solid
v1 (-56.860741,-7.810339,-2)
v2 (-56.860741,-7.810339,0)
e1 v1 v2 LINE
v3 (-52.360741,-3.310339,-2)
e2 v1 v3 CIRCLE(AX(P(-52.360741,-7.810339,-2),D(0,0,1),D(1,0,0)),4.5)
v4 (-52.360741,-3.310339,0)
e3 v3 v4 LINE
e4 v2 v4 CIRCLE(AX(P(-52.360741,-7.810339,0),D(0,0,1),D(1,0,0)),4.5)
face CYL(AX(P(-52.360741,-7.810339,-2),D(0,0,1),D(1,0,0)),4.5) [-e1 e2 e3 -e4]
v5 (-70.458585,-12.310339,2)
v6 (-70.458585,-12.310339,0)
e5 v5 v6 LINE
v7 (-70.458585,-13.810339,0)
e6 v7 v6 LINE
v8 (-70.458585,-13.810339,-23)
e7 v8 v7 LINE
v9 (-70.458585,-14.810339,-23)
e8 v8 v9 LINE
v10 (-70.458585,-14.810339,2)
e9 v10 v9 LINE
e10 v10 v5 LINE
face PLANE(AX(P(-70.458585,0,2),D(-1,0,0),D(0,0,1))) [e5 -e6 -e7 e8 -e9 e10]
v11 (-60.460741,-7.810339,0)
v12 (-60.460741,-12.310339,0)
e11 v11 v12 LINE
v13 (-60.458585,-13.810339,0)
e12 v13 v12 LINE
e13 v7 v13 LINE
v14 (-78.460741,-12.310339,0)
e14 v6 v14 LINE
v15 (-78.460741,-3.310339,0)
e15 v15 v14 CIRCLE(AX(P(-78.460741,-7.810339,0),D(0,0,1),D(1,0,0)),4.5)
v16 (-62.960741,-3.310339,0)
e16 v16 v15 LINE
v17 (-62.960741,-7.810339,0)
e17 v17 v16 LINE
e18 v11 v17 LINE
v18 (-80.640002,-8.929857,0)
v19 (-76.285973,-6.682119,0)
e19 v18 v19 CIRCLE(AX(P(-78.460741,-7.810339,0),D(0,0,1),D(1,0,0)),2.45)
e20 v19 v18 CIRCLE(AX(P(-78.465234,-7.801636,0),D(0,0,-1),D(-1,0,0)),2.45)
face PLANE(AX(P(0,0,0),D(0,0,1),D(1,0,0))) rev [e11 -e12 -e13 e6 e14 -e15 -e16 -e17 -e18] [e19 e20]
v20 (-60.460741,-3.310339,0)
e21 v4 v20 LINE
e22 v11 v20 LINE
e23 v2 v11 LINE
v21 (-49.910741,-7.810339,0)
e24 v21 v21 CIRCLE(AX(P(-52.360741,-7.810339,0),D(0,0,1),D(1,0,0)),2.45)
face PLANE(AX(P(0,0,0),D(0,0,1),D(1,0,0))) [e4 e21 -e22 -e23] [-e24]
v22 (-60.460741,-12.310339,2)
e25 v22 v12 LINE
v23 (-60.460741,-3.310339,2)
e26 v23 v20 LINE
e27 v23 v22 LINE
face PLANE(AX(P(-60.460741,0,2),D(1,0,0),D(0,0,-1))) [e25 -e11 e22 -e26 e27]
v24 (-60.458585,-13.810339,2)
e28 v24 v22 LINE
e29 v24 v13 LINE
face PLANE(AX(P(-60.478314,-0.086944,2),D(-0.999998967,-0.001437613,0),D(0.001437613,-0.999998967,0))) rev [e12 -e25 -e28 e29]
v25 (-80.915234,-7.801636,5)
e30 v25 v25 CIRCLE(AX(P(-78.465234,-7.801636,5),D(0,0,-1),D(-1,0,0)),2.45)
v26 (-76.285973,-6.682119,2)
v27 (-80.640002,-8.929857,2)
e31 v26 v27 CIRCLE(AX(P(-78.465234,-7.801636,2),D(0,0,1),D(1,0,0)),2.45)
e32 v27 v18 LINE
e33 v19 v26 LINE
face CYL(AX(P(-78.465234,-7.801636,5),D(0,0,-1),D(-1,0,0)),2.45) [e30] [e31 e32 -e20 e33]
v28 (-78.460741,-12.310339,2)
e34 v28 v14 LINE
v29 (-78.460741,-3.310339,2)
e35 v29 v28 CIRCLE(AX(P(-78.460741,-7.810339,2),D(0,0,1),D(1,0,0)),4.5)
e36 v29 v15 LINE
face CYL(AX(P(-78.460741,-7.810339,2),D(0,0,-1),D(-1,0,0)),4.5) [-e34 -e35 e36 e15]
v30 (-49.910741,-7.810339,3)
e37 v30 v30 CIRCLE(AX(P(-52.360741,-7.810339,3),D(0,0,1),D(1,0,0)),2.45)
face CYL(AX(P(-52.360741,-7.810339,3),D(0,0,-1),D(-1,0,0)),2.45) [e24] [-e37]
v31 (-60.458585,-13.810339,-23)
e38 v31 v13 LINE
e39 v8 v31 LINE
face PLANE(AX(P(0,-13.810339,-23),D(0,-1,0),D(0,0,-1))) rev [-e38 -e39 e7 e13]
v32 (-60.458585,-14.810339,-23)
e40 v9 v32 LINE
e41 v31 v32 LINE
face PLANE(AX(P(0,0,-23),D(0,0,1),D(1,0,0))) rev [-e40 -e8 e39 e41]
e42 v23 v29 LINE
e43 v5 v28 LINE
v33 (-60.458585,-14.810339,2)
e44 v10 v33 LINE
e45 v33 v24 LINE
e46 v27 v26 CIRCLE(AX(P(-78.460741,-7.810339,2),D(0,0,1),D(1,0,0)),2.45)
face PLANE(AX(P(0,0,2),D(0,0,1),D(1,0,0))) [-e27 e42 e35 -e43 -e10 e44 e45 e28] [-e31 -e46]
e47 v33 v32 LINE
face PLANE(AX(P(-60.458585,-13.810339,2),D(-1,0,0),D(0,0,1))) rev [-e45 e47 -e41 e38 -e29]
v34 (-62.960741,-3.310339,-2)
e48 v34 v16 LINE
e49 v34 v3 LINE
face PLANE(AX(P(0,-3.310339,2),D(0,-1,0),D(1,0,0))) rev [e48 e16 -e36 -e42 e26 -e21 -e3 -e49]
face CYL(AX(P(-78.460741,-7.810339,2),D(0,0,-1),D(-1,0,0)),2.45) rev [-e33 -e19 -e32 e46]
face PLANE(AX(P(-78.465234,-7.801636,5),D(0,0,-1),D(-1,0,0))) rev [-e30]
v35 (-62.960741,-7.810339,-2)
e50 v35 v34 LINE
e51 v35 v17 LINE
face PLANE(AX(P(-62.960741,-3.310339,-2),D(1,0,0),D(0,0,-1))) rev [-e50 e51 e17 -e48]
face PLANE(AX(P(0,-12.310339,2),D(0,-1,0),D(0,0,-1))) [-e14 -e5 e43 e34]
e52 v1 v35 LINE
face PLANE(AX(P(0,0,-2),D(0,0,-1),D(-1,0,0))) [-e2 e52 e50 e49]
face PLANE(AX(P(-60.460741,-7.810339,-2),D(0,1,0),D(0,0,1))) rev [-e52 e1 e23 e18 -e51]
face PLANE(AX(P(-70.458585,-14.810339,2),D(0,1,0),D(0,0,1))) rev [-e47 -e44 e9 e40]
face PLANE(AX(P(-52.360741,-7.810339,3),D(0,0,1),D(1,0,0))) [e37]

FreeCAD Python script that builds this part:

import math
import FreeCAD as App
import Part
import Sketcher

V = App.Vector
Q = App.Units.Quantity


def add_polygon(sketch, points):
    """Adds a closed chain of lines whose ends are joined by coincident constraints."""
    first, n = sketch.GeometryCount, len(points)
    for a, b in zip(points, points[1:] + points[:1]):
        sketch.addGeometry(Part.LineSegment(App.Vector(*a, 0), App.Vector(*b, 0)), False)
    for i in range(n):
        sketch.addConstraint(Sketcher.Constraint("Coincident", first + i, 2, first + (i + 1) % n, 1))

doc = App.newDocument("Part")
params = doc.addObject("Spreadsheet::Sheet", "Params")
for row, (alias, value) in enumerate([
    ("sketch1_diameter", "4.9 mm"),
    ("sketch1_radius", "4.5 mm"),
    ("sketch1_width", "8.1 mm"),
    ("pad1_length", "2 mm"),
    ("sketch2_diameter", "4.9 mm"),
    ("sketch2_radius", "4.5 mm"),
    ("sketch2_width", "10 mm"),
    ("sketch2_width2", "18 mm"),
    ("sketch2_height", "1.5 mm"),
    ("pad2_length", "2 mm"),
    ("sketch3_diameter", "4.9 mm"),
    ("pad3_length", "3 mm"),
    ("pad4_length", "2 mm"),
    ("sketch5_width", "2.5 mm"),
    ("sketch5_height", "4.5 mm"),
    ("pad5_length", "2 mm"),
    ("sketch6_width", "10 mm"),
    ("sketch6_height", "1 mm"),
    ("pad6_length", "23 mm"),
    ("sketch7_width", "10 mm"),
    ("sketch7_height", "1 mm"),
    ("pad7_length", "2 mm"),
    ("sketch8_diameter", "4.9 mm"),
    ("pad8_length", "5 mm"),
], start=1):
    params.set(f"A{row}", alias)
    params.set(f"B{row}", "=" + value)
    params.setAlias(f"B{row}", alias)

body = doc.addObject("PartDesign::Body", "Body")

# Sketch on XY plane
sketch1 = body.newObject("Sketcher::SketchObject", "Sketch")
sketch1.AttachmentSupport = (doc.getObject("XY_Plane"), [""])
sketch1.MapMode = "FlatFace"
sketch1.addGeometry([
    Part.LineSegment(V(-52.4, -3.3, 0), V(-60.5, -3.3, 0)),  # 0
    Part.LineSegment(V(-60.5, -3.3, 0), V(-60.5, -7.8, 0)),  # 1
    Part.LineSegment(V(-60.5, -7.8, 0), V(-56.9, -7.8, 0)),  # 2
    Part.ArcOfCircle(Part.Circle(V(-52.4, -7.8, 0), V(0, 0, 1), 4.5), math.radians(180), math.radians(450)),  # 3
    Part.Circle(V(-52.4, -7.8, 0), V(0, 0, 1), 2.5),  # 4
], False)
sketch1.addConstraint([
    Sketcher.Constraint("Coincident", 0, 2, 1, 1),
    Sketcher.Constraint("Coincident", 1, 2, 2, 1),
    Sketcher.Constraint("Coincident", 2, 2, 3, 1),
    Sketcher.Constraint("Tangent", 3, 2, 0, 1),
    Sketcher.Constraint("Horizontal", 0),
    Sketcher.Constraint("Vertical", 1),
    Sketcher.Constraint("Horizontal", 2),
    Sketcher.Constraint("Coincident", 4, 3, 3, 3),
    Sketcher.Constraint("Horizontal", 4, 3, 1, 2),
    Sketcher.Constraint("Diameter", 4, Q("4.9 mm")),
    Sketcher.Constraint("Radius", 3, Q("4.5 mm")),
    Sketcher.Constraint("DistanceX", 0, 2, 0, 1, Q("8.1 mm")),
    Sketcher.Constraint("DistanceX", 3, 3, -1, 1, Q("52.360741 mm")),
    Sketcher.Constraint("DistanceY", 3, 3, -1, 1, Q("7.810339 mm")),
])
sketch1.setExpression("Constraints[9]", "Params.sketch1_diameter")
sketch1.setExpression("Constraints[10]", "Params.sketch1_radius")
sketch1.setExpression("Constraints[11]", "Params.sketch1_width")
pad1 = body.newObject("PartDesign::Pad", "Pad")
pad1.Profile = sketch1
pad1.setExpression("Length", "Params.pad1_length")
pad1.Reversed = True
body2 = doc.addObject("PartDesign::Body", "Body001")

# Sketch on XY plane
sketch2 = body2.newObject("Sketcher::SketchObject", "Sketch001")
sketch2.AttachmentSupport = (doc.getObject("XY_Plane001"), [""])
sketch2.MapMode = "FlatFace"
sketch2.addGeometry([
    Part.LineSegment(V(-78.5, -12.3, 0), V(-70.5, -12.3, 0)),  # 0
    Part.LineSegment(V(-70.5, -12.3, 0), V(-70.5, -13.8, 0)),  # 1
    Part.LineSegment(V(-70.5, -13.8, 0), V(-60.5, -13.8, 0)),  # 2
    Part.LineSegment(V(-60.5, -13.8, 0), V(-60.5, -12.3, 0)),  # 3
    Part.LineSegment(V(-60.5, -12.3, 0), V(-60.5, -3.3, 0)),  # 4
    Part.LineSegment(V(-60.5, -3.3, 0), V(-78.5, -3.3, 0)),  # 5
    Part.ArcOfCircle(Part.Circle(V(-78.5, -7.8, 0), V(0, 0, 1), 4.5), math.radians(90), math.radians(270)),  # 6
    Part.Circle(V(-78.5, -7.8, 0), V(0, 0, 1), 2.5),  # 7
], False)
sketch2.addConstraint([
    Sketcher.Constraint("Coincident", 0, 2, 1, 1),
    Sketcher.Constraint("Coincident", 1, 2, 2, 1),
    Sketcher.Constraint("Coincident", 2, 2, 3, 1),
    Sketcher.Constraint("Coincident", 3, 2, 4, 1),
    Sketcher.Constraint("Coincident", 4, 2, 5, 1),
    Sketcher.Constraint("Tangent", 5, 2, 6, 1),
    Sketcher.Constraint("Tangent", 6, 2, 0, 1),
    Sketcher.Constraint("Horizontal", 0),
    Sketcher.Constraint("Vertical", 1),
    Sketcher.Constraint("Horizontal", 2),
    Sketcher.Constraint("Vertical", 4),
    Sketcher.Constraint("Horizontal", 5),
    Sketcher.Constraint("Coincident", 7, 3, 6, 3),
    Sketcher.Constraint("Horizontal", 0, 2, 3, 2),
    Sketcher.Constraint("Diameter", 7, Q("4.9 mm")),
    Sketcher.Constraint("Radius", 6, Q("4.5 mm")),
    Sketcher.Constraint("DistanceX", 2, 1, 2, 2, Q("10 mm")),
    Sketcher.Constraint("DistanceX", 5, 2, 5, 1, Q("18 mm")),
    Sketcher.Constraint("DistanceY", 1, 2, 1, 1, Q("1.5 mm")),
    Sketcher.Constraint("DistanceX", 0, 1, 0, 2, Q("8.002156 mm")),
    Sketcher.Constraint("DistanceX", 6, 3, -1, 1, Q("78.460741 mm")),
    Sketcher.Constraint("DistanceY", 6, 3, -1, 1, Q("7.810339 mm")),
])
sketch2.setExpression("Constraints[14]", "Params.sketch2_diameter")
sketch2.setExpression("Constraints[15]", "Params.sketch2_radius")
sketch2.setExpression("Constraints[16]", "Params.sketch2_width")
sketch2.setExpression("Constraints[17]", "Params.sketch2_width2")
sketch2.setExpression("Constraints[18]", "Params.sketch2_height")
pad2 = body2.newObject("PartDesign::Pad", "Pad001")
pad2.Profile = sketch2
pad2.setExpression("Length", "Params.pad2_length")
body3 = doc.addObject("PartDesign::Body", "Body002")

# Sketch on XY plane
sketch3 = body3.newObject("Sketcher::SketchObject", "Sketch002")
sketch3.AttachmentSupport = (doc.getObject("XY_Plane002"), [""])
sketch3.MapMode = "FlatFace"
sketch3.addGeometry(Part.Circle(V(-52.4, -7.8, 0), V(0, 0, 1), 2.5), False)
sketch3.addConstraint([
    Sketcher.Constraint("Diameter", 0, Q("4.9 mm")),
    Sketcher.Constraint("DistanceX", 0, 3, -1, 1, Q("52.360741 mm")),
    Sketcher.Constraint("DistanceY", 0, 3, -1, 1, Q("7.810339 mm")),
])
sketch3.setExpression("Constraints[0]", "Params.sketch3_diameter")
pad3 = body3.newObject("PartDesign::Pad", "Pad002")
pad3.Profile = sketch3
pad3.setExpression("Length", "Params.pad3_length")
body.AllowCompound = True
doc.recompute()

boolean = body.newObject("PartDesign::Boolean", "Boolean")
boolean.Type = "Fuse"
boolean.addObjects([body3])

# Sketch on XY plane
sketch4 = body.newObject("Sketcher::SketchObject", "Sketch003")
sketch4.AttachmentSupport = (doc.getObject("XY_Plane"), [""])
sketch4.MapMode = "FlatFace"
sketch4.addGeometry(Part.Circle(V(-52.4, -7.8, 0), V(0, 0, 1), 2.5), False)
sketch4.addConstraint([
    Sketcher.Constraint("Diameter", 0, Q("5.058905 mm")),
    Sketcher.Constraint("DistanceY", 0, 3, -1, 1, Q("7.79565 mm")),
    Sketcher.Constraint("DistanceX", 0, 3, -1, 1, Q("52.438824 mm")),
])
pad4 = body.newObject("PartDesign::Pad", "Pad003")
pad4.Profile = sketch4
pad4.setExpression("Length", "Params.pad4_length")
pad4.Reversed = True
doc.recompute()

boolean2 = body.newObject("PartDesign::Boolean", "Boolean001")
boolean2.Type = "Fuse"
boolean2.addObjects([body2])

# Sketch on XY plane
sketch5 = body.newObject("Sketcher::SketchObject", "Sketch004")
sketch5.AttachmentSupport = (doc.getObject("XY_Plane"), [""])
sketch5.MapMode = "FlatFace"
add_polygon(sketch5, [(-60.5, -3.3), (-60.5, -7.8), (-63, -7.8), (-63, -3.3)])  # lines 0-3
sketch5.addConstraint([
    Sketcher.Constraint("Vertical", 0),
    Sketcher.Constraint("Horizontal", 1),
    Sketcher.Constraint("Vertical", 2),
    Sketcher.Constraint("Horizontal", 3),
    Sketcher.Constraint("DistanceX", 1, 2, 1, 1, Q("2.5 mm")),
    Sketcher.Constraint("DistanceY", 0, 2, 0, 1, Q("4.5 mm")),
    Sketcher.Constraint("DistanceX", 0, 2, -1, 1, Q("60.460741 mm")),
    Sketcher.Constraint("DistanceY", 0, 2, -1, 1, Q("7.810339 mm")),
])
sketch5.setExpression("Constraints[8]", "Params.sketch5_width")
sketch5.setExpression("Constraints[9]", "Params.sketch5_height")
pad5 = body.newObject("PartDesign::Pad", "Pad004")
pad5.Profile = sketch5
pad5.setExpression("Length", "Params.pad5_length")
pad5.Reversed = True
body4 = doc.addObject("PartDesign::Body", "Body003")

# Sketch on XY plane
sketch6 = body4.newObject("Sketcher::SketchObject", "Sketch005")
sketch6.AttachmentSupport = (doc.getObject("XY_Plane003"), [""])
sketch6.MapMode = "FlatFace"
add_polygon(sketch6, [(-70.5, -13.8), (-70.5, -14.8), (-60.5, -14.8), (-60.5, -13.8)])  # lines 0-3
sketch6.addConstraint([
    Sketcher.Constraint("Vertical", 0),
    Sketcher.Constraint("Horizontal", 1),
    Sketcher.Constraint("Vertical", 2),
    Sketcher.Constraint("Horizontal", 3),
    Sketcher.Constraint("DistanceX", 1, 1, 1, 2, Q("10 mm")),
    Sketcher.Constraint("DistanceY", 0, 2, 0, 1, Q("1 mm")),
    Sketcher.Constraint("DistanceY", 0, 2, -1, 1, Q("14.810339 mm")),
    Sketcher.Constraint("DistanceX", 0, 2, -1, 1, Q("70.458585 mm")),
])
sketch6.setExpression("Constraints[8]", "Params.sketch6_width")
sketch6.setExpression("Constraints[9]", "Params.sketch6_height")
pad6 = body4.newObject("PartDesign::Pad", "Pad005")
pad6.Profile = sketch6
pad6.setExpression("Length", "Params.pad6_length")
pad6.Reversed = True
body.AllowCompound = True
doc.recompute()

boolean3 = body.newObject("PartDesign::Boolean", "Boolean002")
boolean3.Type = "Fuse"
boolean3.addObjects([body4])

# Sketch on XY plane
sketch7 = body.newObject("Sketcher::SketchObject", "Sketch006")
sketch7.AttachmentSupport = (doc.getObject("XY_Plane"), [""])
sketch7.MapMode = "FlatFace"
add_polygon(sketch7, [(-70.5, -13.8), (-70.5, -14.8), (-60.5, -14.8), (-60.5, -13.8)])  # lines 0-3
sketch7.addConstraint([
    Sketcher.Constraint("Vertical", 0),
    Sketcher.Constraint("Horizontal", 1),
    Sketcher.Constraint("Vertical", 2),
    Sketcher.Constraint("Horizontal", 3),
    Sketcher.Constraint("DistanceX", 1, 1, 1, 2, Q("10 mm")),
    Sketcher.Constraint("DistanceY", 0, 2, 0, 1, Q("1 mm")),
    Sketcher.Constraint("DistanceY", 0, 2, -1, 1, Q("14.810339 mm")),
    Sketcher.Constraint("DistanceX", 0, 2, -1, 1, Q("70.458585 mm")),
])
sketch7.setExpression("Constraints[8]", "Params.sketch7_width")
sketch7.setExpression("Constraints[9]", "Params.sketch7_height")
pad7 = body.newObject("PartDesign::Pad", "Pad006")
pad7.Profile = sketch7
pad7.setExpression("Length", "Params.pad7_length")

# Sketch on XY plane
sketch8 = body.newObject("Sketcher::SketchObject", "Sketch007")
sketch8.AttachmentSupport = (doc.getObject("XY_Plane"), [""])
sketch8.MapMode = "FlatFace"
sketch8.addGeometry(Part.Circle(V(-78.5, -7.8, 0), V(0, 0, 1), 2.5), False)
sketch8.addConstraint([
    Sketcher.Constraint("Diameter", 0, Q("4.9 mm")),
    Sketcher.Constraint("DistanceX", 0, 3, -1, 1, Q("78.465234 mm")),
    Sketcher.Constraint("DistanceY", 0, 3, -1, 1, Q("7.801636 mm")),
])
sketch8.setExpression("Constraints[0]", "Params.sketch8_diameter")
pad8 = body.newObject("PartDesign::Pad", "Pad007")
pad8.Profile = sketch8
pad8.setExpression("Length", "Params.pad8_length")

doc.recompute()
